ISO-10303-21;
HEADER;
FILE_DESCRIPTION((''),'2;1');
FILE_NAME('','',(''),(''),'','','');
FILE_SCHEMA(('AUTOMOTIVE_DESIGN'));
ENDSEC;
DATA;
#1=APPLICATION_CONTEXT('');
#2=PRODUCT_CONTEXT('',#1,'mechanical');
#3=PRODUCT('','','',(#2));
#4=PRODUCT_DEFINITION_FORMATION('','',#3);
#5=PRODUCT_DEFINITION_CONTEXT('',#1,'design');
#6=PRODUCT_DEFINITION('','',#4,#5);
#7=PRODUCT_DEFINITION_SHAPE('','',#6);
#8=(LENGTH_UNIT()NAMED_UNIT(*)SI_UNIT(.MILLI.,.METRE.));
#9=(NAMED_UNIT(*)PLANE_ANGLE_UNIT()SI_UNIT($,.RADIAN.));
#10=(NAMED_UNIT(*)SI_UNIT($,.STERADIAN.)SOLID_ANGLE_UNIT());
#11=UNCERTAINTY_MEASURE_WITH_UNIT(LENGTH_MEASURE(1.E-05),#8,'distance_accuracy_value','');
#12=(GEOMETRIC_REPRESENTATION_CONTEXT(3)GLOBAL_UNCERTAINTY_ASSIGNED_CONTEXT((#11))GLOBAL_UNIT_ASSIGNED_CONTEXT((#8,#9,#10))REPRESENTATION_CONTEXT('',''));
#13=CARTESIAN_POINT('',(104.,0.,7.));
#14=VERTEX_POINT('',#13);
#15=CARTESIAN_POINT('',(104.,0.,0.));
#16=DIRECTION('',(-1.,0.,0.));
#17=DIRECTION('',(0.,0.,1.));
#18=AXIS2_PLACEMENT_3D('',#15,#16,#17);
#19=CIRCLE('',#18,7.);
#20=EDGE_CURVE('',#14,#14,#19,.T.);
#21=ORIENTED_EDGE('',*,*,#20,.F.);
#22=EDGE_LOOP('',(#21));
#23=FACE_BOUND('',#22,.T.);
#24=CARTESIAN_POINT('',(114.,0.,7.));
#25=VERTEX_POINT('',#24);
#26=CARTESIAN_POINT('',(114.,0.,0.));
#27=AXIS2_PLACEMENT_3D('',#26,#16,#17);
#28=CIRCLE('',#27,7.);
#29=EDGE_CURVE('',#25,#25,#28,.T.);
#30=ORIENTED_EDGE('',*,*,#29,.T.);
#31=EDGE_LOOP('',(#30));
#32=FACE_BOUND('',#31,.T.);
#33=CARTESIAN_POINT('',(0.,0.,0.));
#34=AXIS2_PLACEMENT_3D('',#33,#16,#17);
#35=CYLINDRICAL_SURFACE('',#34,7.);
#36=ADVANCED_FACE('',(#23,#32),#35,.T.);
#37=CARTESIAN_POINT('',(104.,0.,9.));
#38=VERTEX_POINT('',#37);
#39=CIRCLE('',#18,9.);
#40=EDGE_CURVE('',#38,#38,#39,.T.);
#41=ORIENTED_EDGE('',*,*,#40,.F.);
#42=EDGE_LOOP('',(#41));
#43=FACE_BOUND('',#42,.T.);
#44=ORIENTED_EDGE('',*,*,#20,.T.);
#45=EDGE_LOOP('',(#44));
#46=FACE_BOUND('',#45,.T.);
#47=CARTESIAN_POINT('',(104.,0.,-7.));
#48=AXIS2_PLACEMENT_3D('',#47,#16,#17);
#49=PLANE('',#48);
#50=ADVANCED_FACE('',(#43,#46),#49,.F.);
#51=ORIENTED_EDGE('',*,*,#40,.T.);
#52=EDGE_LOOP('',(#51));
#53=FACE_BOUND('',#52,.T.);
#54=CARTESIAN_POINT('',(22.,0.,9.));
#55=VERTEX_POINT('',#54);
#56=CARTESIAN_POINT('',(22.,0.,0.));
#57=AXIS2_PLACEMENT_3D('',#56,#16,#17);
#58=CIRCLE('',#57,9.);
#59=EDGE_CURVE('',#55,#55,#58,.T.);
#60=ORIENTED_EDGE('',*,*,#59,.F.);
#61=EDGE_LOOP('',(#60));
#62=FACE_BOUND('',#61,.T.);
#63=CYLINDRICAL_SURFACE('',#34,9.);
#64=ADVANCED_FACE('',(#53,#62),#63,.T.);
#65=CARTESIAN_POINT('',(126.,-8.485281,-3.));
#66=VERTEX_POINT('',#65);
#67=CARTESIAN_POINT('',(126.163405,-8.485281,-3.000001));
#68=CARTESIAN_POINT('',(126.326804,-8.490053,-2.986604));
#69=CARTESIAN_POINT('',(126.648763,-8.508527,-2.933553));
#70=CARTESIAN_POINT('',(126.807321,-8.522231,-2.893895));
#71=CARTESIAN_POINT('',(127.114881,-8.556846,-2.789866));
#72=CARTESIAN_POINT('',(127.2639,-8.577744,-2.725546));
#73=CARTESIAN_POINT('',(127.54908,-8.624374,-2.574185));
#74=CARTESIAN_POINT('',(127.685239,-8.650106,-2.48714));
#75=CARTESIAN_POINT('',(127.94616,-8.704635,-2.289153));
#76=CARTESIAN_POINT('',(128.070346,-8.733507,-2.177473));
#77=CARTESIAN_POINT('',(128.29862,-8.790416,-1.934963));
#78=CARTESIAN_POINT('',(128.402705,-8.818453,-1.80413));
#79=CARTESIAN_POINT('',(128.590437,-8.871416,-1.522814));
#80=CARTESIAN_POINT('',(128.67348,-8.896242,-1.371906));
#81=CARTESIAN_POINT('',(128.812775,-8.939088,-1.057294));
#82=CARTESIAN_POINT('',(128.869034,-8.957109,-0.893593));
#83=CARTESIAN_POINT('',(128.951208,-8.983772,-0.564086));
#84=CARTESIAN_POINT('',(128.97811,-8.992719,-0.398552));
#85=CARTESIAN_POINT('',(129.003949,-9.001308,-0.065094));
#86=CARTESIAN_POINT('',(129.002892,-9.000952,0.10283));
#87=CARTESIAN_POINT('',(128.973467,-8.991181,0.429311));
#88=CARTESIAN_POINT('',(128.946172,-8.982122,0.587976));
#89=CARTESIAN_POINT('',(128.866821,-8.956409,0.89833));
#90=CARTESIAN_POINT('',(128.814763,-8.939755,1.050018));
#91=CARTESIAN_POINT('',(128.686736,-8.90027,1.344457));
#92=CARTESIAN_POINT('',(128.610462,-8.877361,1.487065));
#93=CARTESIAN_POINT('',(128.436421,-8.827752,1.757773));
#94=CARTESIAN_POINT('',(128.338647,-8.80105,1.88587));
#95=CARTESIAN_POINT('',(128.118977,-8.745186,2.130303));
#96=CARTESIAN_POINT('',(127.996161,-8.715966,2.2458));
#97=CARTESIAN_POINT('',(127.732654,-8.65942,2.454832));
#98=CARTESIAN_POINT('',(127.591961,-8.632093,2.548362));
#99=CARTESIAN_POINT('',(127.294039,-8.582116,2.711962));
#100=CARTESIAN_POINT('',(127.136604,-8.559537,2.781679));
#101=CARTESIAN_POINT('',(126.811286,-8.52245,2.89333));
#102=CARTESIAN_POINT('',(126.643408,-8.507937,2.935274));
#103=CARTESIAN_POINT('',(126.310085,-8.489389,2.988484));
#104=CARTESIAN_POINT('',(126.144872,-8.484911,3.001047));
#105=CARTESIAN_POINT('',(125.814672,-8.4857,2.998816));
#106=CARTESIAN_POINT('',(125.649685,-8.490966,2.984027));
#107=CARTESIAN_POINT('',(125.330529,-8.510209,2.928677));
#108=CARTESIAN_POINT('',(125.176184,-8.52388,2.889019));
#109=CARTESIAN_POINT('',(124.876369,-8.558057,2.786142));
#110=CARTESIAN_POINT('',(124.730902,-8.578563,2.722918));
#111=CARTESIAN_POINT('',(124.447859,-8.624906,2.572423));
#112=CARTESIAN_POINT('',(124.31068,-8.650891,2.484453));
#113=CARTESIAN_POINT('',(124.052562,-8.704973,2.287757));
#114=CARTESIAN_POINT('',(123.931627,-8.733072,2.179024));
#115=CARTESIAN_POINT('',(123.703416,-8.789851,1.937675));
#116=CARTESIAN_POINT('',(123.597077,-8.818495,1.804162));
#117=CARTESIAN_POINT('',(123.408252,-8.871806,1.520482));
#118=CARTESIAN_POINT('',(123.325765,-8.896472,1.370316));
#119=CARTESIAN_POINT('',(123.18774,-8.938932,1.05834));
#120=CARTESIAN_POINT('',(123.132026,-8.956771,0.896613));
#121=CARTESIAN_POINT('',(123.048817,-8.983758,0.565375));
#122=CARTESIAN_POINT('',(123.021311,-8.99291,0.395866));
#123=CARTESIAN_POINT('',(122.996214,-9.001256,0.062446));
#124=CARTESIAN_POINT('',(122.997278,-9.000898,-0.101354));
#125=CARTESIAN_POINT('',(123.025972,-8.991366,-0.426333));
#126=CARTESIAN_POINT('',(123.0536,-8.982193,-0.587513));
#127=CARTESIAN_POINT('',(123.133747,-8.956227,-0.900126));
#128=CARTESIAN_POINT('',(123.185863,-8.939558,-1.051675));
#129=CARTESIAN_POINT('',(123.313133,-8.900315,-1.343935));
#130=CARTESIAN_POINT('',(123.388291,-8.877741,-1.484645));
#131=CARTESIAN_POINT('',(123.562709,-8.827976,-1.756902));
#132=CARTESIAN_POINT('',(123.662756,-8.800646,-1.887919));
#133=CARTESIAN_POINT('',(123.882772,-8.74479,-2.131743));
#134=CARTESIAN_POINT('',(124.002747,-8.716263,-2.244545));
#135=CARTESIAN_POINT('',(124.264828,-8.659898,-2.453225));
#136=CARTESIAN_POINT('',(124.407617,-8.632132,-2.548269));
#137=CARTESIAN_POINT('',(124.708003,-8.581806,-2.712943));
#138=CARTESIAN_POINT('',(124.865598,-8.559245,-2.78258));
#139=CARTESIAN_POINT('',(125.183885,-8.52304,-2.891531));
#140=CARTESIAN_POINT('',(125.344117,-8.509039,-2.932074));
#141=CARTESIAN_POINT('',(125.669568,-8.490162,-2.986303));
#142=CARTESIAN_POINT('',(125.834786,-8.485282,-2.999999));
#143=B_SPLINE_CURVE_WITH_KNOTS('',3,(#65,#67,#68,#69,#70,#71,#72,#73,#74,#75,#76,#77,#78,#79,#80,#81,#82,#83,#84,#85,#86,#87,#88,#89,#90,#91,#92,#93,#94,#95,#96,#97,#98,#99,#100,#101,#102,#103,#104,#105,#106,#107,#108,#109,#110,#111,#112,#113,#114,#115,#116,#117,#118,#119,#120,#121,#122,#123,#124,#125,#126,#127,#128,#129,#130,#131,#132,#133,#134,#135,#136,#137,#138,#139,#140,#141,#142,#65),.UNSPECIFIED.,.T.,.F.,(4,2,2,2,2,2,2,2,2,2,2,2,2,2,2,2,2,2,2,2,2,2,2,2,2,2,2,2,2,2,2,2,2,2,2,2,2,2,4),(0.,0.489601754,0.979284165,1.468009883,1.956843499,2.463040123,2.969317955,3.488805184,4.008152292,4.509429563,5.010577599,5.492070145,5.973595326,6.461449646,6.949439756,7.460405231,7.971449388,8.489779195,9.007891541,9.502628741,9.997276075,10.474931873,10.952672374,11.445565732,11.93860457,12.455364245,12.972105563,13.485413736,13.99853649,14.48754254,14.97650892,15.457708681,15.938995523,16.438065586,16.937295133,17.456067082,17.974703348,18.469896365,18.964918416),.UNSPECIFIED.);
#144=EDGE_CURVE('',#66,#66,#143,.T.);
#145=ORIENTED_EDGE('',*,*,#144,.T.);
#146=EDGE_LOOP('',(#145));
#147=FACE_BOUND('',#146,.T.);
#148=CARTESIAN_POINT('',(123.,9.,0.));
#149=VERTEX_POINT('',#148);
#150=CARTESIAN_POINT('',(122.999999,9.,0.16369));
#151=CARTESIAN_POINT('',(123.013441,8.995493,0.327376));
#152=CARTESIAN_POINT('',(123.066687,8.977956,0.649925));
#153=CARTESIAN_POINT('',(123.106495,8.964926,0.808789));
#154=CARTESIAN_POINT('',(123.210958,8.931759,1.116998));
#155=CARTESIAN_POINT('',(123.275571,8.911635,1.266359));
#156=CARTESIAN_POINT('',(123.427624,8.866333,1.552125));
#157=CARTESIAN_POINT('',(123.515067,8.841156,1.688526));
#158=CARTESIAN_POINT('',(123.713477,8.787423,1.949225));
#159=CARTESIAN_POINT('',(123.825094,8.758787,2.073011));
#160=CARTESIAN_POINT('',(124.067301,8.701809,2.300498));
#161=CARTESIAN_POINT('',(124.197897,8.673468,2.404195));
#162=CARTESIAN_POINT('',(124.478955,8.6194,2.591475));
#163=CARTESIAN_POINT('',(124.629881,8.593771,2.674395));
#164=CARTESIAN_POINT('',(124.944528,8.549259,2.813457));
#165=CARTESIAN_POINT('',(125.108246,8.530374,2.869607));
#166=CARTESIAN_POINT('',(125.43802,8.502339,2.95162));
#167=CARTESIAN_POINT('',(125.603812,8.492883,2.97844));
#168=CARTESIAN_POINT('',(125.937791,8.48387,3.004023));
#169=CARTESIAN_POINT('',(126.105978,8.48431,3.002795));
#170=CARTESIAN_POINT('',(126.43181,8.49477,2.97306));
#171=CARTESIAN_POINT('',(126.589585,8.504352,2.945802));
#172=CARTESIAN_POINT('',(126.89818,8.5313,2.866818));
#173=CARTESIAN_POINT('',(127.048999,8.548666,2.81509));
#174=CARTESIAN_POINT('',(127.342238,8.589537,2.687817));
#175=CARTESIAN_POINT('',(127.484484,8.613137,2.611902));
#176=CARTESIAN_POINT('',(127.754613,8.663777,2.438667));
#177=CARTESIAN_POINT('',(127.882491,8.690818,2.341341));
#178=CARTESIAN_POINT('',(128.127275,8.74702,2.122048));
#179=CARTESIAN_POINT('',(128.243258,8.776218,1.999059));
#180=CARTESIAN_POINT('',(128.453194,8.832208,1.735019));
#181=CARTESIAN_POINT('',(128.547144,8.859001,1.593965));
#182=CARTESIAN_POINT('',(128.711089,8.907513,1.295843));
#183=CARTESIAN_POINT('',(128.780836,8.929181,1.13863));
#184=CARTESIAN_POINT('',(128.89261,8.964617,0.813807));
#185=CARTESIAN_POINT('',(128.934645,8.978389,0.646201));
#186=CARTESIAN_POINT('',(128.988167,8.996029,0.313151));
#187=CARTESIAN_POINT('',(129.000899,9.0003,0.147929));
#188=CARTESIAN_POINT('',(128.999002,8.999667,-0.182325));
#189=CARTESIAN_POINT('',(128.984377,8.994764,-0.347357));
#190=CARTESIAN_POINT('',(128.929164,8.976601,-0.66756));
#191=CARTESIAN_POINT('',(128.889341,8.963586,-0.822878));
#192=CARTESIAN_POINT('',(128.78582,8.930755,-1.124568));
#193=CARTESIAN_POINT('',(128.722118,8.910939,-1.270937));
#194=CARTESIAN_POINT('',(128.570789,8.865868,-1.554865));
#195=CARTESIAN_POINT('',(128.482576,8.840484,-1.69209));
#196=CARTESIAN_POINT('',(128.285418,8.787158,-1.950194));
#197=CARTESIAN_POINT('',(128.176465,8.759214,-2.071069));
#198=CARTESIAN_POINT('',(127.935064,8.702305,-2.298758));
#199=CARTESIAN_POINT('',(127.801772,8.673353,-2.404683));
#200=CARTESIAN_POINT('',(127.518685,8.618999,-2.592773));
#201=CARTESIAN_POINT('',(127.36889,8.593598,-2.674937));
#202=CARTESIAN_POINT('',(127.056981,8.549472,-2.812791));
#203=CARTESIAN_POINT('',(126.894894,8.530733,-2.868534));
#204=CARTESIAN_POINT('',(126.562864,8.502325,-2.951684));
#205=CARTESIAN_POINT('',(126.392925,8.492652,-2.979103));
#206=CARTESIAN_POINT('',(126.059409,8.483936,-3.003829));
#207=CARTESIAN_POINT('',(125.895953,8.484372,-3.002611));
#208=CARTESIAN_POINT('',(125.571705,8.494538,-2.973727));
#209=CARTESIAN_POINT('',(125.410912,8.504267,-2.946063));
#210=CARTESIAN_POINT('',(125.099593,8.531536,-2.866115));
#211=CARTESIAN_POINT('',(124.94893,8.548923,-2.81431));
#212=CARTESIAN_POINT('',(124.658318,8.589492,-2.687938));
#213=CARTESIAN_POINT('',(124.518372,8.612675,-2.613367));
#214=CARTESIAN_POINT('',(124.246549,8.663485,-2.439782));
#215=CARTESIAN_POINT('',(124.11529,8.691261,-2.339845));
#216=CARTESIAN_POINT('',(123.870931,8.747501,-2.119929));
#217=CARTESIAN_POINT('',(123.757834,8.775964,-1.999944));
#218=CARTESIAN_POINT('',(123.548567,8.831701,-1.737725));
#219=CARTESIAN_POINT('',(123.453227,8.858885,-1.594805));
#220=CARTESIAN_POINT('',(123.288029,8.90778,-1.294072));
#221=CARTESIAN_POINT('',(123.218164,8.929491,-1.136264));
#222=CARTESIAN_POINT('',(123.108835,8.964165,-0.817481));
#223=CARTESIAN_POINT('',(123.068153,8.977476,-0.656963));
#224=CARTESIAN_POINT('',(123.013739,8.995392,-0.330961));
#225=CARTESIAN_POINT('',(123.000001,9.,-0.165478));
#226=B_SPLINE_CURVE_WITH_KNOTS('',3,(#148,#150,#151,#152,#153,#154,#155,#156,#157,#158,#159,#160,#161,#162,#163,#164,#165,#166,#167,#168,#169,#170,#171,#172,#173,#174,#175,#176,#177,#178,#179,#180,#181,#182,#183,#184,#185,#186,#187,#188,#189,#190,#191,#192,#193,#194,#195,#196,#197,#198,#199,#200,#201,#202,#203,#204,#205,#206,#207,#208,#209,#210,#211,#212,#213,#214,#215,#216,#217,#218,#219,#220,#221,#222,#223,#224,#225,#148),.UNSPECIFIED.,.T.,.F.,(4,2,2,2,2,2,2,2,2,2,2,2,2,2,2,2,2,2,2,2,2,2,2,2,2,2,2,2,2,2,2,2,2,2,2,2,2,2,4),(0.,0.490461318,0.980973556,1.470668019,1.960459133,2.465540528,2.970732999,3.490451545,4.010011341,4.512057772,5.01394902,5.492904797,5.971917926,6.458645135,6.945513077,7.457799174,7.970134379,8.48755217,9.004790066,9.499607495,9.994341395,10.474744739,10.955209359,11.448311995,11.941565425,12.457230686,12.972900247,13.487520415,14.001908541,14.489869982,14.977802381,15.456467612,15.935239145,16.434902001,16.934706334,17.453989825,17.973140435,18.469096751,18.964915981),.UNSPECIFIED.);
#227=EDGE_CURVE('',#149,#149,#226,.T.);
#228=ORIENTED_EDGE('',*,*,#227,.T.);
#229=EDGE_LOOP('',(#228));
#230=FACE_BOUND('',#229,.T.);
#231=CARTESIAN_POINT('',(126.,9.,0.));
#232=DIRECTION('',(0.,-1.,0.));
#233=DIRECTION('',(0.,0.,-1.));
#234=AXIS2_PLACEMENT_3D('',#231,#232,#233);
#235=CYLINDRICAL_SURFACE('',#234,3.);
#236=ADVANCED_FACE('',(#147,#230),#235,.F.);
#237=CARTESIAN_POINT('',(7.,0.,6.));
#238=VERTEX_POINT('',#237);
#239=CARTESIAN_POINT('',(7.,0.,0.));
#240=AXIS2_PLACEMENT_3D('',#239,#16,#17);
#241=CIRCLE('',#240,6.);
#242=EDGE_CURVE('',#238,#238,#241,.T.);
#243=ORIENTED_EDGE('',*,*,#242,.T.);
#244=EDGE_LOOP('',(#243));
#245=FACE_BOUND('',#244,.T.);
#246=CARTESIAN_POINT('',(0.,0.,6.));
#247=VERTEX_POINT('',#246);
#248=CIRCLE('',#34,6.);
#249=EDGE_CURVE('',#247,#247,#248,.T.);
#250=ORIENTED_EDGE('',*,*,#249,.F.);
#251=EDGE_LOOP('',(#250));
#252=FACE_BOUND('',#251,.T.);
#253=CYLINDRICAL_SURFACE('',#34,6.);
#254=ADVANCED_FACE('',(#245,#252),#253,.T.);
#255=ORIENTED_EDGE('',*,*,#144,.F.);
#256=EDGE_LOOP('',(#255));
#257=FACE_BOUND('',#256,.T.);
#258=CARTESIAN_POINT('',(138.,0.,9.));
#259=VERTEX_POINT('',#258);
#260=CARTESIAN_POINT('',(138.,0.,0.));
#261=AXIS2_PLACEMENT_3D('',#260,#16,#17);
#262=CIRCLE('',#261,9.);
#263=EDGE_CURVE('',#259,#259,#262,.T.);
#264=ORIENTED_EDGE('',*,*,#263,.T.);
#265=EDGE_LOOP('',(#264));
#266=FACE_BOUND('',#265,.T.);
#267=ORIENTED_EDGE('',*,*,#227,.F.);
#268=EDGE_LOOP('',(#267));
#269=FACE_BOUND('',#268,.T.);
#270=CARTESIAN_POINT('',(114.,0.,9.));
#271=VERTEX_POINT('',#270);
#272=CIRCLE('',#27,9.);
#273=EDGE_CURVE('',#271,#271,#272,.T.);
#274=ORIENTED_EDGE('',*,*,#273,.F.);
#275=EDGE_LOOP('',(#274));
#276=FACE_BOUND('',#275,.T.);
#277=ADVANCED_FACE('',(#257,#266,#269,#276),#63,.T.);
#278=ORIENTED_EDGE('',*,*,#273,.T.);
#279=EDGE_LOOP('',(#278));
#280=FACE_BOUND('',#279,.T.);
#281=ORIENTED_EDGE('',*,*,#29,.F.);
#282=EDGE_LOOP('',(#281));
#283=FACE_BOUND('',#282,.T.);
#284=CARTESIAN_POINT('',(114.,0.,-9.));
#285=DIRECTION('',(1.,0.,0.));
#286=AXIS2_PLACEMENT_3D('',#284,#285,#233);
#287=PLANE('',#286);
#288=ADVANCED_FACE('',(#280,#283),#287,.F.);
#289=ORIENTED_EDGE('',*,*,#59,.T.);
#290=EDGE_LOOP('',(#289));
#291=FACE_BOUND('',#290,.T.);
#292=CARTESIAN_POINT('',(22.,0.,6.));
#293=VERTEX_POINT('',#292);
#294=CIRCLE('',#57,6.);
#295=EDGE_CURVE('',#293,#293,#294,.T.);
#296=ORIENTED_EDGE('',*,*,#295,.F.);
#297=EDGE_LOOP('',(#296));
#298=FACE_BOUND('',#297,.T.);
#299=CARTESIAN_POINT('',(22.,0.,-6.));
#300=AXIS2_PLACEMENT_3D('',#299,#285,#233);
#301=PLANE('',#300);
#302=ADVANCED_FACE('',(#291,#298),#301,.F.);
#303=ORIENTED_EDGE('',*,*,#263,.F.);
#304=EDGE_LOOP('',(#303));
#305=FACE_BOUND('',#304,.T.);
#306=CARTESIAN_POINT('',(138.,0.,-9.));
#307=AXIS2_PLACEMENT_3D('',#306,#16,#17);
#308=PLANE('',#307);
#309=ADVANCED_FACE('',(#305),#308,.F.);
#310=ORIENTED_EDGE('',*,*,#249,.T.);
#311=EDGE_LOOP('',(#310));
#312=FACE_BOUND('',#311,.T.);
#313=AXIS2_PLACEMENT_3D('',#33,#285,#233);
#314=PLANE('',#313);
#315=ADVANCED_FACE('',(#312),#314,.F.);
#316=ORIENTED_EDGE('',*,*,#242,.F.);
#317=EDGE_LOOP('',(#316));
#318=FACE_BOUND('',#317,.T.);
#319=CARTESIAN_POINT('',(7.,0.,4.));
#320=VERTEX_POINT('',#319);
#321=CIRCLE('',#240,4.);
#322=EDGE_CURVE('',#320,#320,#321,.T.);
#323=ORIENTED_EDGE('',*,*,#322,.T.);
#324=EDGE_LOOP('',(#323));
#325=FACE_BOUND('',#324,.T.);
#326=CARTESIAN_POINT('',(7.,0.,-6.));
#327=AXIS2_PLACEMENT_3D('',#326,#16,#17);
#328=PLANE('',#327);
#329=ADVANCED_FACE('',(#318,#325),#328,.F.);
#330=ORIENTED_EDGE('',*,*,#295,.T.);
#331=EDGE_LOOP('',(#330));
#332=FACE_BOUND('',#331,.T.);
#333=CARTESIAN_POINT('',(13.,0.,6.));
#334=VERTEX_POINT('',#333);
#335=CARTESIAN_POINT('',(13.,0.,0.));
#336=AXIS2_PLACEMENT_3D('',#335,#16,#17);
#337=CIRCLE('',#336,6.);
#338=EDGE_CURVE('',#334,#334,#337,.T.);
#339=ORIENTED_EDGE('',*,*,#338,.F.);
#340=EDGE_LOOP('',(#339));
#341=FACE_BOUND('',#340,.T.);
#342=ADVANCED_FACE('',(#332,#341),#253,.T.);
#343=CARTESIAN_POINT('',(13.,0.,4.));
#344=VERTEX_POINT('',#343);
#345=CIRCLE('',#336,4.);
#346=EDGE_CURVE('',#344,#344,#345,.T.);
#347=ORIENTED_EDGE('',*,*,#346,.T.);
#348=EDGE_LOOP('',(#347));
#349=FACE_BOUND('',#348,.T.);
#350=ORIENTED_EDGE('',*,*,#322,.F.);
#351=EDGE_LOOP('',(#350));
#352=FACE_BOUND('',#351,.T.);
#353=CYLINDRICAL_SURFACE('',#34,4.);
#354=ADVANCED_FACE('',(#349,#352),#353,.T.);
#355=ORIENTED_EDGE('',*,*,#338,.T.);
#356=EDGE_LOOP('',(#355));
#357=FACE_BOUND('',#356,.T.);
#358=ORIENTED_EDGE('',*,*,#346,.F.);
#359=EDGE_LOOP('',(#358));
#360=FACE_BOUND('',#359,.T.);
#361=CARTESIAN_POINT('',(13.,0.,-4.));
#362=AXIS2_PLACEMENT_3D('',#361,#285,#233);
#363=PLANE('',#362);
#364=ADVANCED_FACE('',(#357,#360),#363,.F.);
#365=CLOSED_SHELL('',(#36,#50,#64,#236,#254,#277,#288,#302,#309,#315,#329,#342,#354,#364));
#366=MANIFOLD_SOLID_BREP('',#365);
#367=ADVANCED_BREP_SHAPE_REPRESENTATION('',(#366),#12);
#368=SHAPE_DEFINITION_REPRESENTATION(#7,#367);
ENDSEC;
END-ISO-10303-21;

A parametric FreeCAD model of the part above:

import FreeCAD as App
import Part
import Sketcher

V = App.Vector

doc = App.newDocument("Part")
params = doc.addObject("Spreadsheet::Sheet", "Params")
for row, (alias, value) in enumerate([
    ("sketch1_width", "138 mm"),
    ("sketch1_width2", "24 mm"),
    ("sketch1_width3", "10 mm"),
    ("sketch1_width4", "82 mm"),
    ("sketch1_width5", "9 mm"),
    ("revolution_angle", "360 deg"),
    ("sketch2_diameter", "6 mm"),
], start=1):
    params.set(f"A{row}", alias)
    params.set(f"B{row}", "=" + value)
    params.setAlias(f"B{row}", alias)

body = doc.addObject("PartDesign::Body", "Body")

# Sketch on XZ plane
sketch1 = body.newObject("Sketcher::SketchObject", "Sketch")
sketch1.AttachmentSupport = (doc.getObject("XZ_Plane"), [""])
sketch1.MapMode = "FlatFace"
sketch1.addGeometry(Part.LineSegment(V(0, -6, 0), V(0, 0, 0)), False)
sketch1.addGeometry(Part.LineSegment(V(0, 0, 0), V(138, 0, 0)), False)
sketch1.addGeometry(Part.LineSegment(V(138, 0, 0), V(138, -9, 0)), False)
sketch1.addGeometry(Part.LineSegment(V(138, -9, 0), V(114, -9, 0)), False)
sketch1.addGeometry(Part.LineSegment(V(114, -9, 0), V(114, -7, 0)), False)
sketch1.addGeometry(Part.LineSegment(V(114, -7, 0), V(104, -7, 0)), False)
sketch1.addGeometry(Part.LineSegment(V(104, -7, 0), V(104, -9, 0)), False)
sketch1.addGeometry(Part.LineSegment(V(104, -9, 0), V(22, -9, 0)), False)
sketch1.addGeometry(Part.LineSegment(V(22, -9, 0), V(22, -6, 0)), False)
sketch1.addGeometry(Part.LineSegment(V(22, -6, 0), V(13, -6, 0)), False)
sketch1.addGeometry(Part.LineSegment(V(13, -6, 0), V(13, -4, 0)), False)
sketch1.addGeometry(Part.LineSegment(V(13, -4, 0), V(7, -4, 0)), False)
sketch1.addGeometry(Part.LineSegment(V(7, -4, 0), V(7, -6, 0)), False)
sketch1.addGeometry(Part.LineSegment(V(7, -6, 0), V(0, -6, 0)), False)
sketch1.addConstraint(Sketcher.Constraint("Coincident", 0, 2, 1, 1))
sketch1.addConstraint(Sketcher.Constraint("Coincident", 1, 2, 2, 1))
sketch1.addConstraint(Sketcher.Constraint("Coincident", 2, 2, 3, 1))
sketch1.addConstraint(Sketcher.Constraint("Coincident", 3, 2, 4, 1))
sketch1.addConstraint(Sketcher.Constraint("Coincident", 4, 2, 5, 1))
sketch1.addConstraint(Sketcher.Constraint("Coincident", 5, 2, 6, 1))
sketch1.addConstraint(Sketcher.Constraint("Coincident", 6, 2, 7, 1))
sketch1.addConstraint(Sketcher.Constraint("Coincident", 7, 2, 8, 1))
sketch1.addConstraint(Sketcher.Constraint("Coincident", 8, 2, 9, 1))
sketch1.addConstraint(Sketcher.Constraint("Coincident", 9, 2, 10, 1))
sketch1.addConstraint(Sketcher.Constraint("Coincident", 10, 2, 11, 1))
sketch1.addConstraint(Sketcher.Constraint("Coincident", 11, 2, 12, 1))
sketch1.addConstraint(Sketcher.Constraint("Coincident", 12, 2, 13, 1))
sketch1.addConstraint(Sketcher.Constraint("Coincident", 13, 2, 0, 1))
sketch1.addConstraint(Sketcher.Constraint("Vertical", 0))
sketch1.addConstraint(Sketcher.Constraint("Horizontal", 1))
sketch1.addConstraint(Sketcher.Constraint("Vertical", 2))
sketch1.addConstraint(Sketcher.Constraint("Horizontal", 3))
sketch1.addConstraint(Sketcher.Constraint("Vertical", 4))
sketch1.addConstraint(Sketcher.Constraint("Horizontal", 5))
sketch1.addConstraint(Sketcher.Constraint("Vertical", 6))
sketch1.addConstraint(Sketcher.Constraint("Horizontal", 7))
sketch1.addConstraint(Sketcher.Constraint("Vertical", 8))
sketch1.addConstraint(Sketcher.Constraint("Horizontal", 9))
sketch1.addConstraint(Sketcher.Constraint("Vertical", 10))
sketch1.addConstraint(Sketcher.Constraint("Horizontal", 11))
sketch1.addConstraint(Sketcher.Constraint("Vertical", 12))
sketch1.addConstraint(Sketcher.Constraint("Horizontal", 13))
sketch1.addConstraint(Sketcher.Constraint("Coincident", 0, 2, -1, 1))
sketch1.addConstraint(Sketcher.Constraint("Horizontal", 3, 2, 6, 2))
sketch1.addConstraint(Sketcher.Constraint("Horizontal", 9, 2, 12, 2))
sketch1.addConstraint(Sketcher.Constraint("Equal", 11, 0))
sketch1.addConstraint(Sketcher.Constraint("Equal", 9, 2))
sketch1.addConstraint(Sketcher.Constraint("Equal", 6, 10))
sketch1.addConstraint(Sketcher.Constraint("DistanceX", 1, 1, 1, 2, 138.0))
sketch1.addConstraint(Sketcher.Constraint("DistanceX", 3, 2, 3, 1, 24.0))
sketch1.addConstraint(Sketcher.Constraint("DistanceX", 5, 2, 5, 1, 10.0))
sketch1.addConstraint(Sketcher.Constraint("DistanceX", 7, 2, 7, 1, 82.0))
sketch1.addConstraint(Sketcher.Constraint("DistanceX", 9, 2, 9, 1, 9.0))
sketch1.addConstraint(Sketcher.Constraint("DistanceX", 11, 2, 11, 1, 6.0))
sketch1.addConstraint(Sketcher.Constraint("DistanceY", 4, 1, 4, 2, 2.0))
sketch1.setExpression("Constraints[34]", "Params.sketch1_width")
sketch1.setExpression("Constraints[35]", "Params.sketch1_width2")
sketch1.setExpression("Constraints[36]", "Params.sketch1_width3")
sketch1.setExpression("Constraints[37]", "Params.sketch1_width4")
sketch1.setExpression("Constraints[38]", "Params.sketch1_width5")
revolution = body.newObject("PartDesign::Revolution", "Revolution")
revolution.Profile = sketch1
revolution.ReferenceAxis = (sketch1, ["H_Axis"])
revolution.setExpression("Angle", "Params.revolution_angle")

# Sketch on XZ plane
sketch2 = body.newObject("Sketcher::SketchObject", "Sketch001")
sketch2.AttachmentSupport = (doc.getObject("XZ_Plane"), [""])
sketch2.MapMode = "FlatFace"
sketch2.addGeometry(Part.Circle(V(126, 0, 0), V(0, 0, 1), 3), False)
sketch2.addConstraint(Sketcher.Constraint("PointOnObject", 0, 3, -1))
sketch2.addConstraint(Sketcher.Constraint("Diameter", 0, 6.0))
sketch2.addConstraint(Sketcher.Constraint("DistanceX", -1, 1, 0, 3, 126.0))
sketch2.setExpression("Constraints[1]", "Params.sketch2_diameter")
pocket1 = body.newObject("PartDesign::Pocket", "Pocket")
pocket1.Profile = sketch2
pocket1.Type = "ThroughAll"
pocket1.Midplane = True

doc.recompute()
